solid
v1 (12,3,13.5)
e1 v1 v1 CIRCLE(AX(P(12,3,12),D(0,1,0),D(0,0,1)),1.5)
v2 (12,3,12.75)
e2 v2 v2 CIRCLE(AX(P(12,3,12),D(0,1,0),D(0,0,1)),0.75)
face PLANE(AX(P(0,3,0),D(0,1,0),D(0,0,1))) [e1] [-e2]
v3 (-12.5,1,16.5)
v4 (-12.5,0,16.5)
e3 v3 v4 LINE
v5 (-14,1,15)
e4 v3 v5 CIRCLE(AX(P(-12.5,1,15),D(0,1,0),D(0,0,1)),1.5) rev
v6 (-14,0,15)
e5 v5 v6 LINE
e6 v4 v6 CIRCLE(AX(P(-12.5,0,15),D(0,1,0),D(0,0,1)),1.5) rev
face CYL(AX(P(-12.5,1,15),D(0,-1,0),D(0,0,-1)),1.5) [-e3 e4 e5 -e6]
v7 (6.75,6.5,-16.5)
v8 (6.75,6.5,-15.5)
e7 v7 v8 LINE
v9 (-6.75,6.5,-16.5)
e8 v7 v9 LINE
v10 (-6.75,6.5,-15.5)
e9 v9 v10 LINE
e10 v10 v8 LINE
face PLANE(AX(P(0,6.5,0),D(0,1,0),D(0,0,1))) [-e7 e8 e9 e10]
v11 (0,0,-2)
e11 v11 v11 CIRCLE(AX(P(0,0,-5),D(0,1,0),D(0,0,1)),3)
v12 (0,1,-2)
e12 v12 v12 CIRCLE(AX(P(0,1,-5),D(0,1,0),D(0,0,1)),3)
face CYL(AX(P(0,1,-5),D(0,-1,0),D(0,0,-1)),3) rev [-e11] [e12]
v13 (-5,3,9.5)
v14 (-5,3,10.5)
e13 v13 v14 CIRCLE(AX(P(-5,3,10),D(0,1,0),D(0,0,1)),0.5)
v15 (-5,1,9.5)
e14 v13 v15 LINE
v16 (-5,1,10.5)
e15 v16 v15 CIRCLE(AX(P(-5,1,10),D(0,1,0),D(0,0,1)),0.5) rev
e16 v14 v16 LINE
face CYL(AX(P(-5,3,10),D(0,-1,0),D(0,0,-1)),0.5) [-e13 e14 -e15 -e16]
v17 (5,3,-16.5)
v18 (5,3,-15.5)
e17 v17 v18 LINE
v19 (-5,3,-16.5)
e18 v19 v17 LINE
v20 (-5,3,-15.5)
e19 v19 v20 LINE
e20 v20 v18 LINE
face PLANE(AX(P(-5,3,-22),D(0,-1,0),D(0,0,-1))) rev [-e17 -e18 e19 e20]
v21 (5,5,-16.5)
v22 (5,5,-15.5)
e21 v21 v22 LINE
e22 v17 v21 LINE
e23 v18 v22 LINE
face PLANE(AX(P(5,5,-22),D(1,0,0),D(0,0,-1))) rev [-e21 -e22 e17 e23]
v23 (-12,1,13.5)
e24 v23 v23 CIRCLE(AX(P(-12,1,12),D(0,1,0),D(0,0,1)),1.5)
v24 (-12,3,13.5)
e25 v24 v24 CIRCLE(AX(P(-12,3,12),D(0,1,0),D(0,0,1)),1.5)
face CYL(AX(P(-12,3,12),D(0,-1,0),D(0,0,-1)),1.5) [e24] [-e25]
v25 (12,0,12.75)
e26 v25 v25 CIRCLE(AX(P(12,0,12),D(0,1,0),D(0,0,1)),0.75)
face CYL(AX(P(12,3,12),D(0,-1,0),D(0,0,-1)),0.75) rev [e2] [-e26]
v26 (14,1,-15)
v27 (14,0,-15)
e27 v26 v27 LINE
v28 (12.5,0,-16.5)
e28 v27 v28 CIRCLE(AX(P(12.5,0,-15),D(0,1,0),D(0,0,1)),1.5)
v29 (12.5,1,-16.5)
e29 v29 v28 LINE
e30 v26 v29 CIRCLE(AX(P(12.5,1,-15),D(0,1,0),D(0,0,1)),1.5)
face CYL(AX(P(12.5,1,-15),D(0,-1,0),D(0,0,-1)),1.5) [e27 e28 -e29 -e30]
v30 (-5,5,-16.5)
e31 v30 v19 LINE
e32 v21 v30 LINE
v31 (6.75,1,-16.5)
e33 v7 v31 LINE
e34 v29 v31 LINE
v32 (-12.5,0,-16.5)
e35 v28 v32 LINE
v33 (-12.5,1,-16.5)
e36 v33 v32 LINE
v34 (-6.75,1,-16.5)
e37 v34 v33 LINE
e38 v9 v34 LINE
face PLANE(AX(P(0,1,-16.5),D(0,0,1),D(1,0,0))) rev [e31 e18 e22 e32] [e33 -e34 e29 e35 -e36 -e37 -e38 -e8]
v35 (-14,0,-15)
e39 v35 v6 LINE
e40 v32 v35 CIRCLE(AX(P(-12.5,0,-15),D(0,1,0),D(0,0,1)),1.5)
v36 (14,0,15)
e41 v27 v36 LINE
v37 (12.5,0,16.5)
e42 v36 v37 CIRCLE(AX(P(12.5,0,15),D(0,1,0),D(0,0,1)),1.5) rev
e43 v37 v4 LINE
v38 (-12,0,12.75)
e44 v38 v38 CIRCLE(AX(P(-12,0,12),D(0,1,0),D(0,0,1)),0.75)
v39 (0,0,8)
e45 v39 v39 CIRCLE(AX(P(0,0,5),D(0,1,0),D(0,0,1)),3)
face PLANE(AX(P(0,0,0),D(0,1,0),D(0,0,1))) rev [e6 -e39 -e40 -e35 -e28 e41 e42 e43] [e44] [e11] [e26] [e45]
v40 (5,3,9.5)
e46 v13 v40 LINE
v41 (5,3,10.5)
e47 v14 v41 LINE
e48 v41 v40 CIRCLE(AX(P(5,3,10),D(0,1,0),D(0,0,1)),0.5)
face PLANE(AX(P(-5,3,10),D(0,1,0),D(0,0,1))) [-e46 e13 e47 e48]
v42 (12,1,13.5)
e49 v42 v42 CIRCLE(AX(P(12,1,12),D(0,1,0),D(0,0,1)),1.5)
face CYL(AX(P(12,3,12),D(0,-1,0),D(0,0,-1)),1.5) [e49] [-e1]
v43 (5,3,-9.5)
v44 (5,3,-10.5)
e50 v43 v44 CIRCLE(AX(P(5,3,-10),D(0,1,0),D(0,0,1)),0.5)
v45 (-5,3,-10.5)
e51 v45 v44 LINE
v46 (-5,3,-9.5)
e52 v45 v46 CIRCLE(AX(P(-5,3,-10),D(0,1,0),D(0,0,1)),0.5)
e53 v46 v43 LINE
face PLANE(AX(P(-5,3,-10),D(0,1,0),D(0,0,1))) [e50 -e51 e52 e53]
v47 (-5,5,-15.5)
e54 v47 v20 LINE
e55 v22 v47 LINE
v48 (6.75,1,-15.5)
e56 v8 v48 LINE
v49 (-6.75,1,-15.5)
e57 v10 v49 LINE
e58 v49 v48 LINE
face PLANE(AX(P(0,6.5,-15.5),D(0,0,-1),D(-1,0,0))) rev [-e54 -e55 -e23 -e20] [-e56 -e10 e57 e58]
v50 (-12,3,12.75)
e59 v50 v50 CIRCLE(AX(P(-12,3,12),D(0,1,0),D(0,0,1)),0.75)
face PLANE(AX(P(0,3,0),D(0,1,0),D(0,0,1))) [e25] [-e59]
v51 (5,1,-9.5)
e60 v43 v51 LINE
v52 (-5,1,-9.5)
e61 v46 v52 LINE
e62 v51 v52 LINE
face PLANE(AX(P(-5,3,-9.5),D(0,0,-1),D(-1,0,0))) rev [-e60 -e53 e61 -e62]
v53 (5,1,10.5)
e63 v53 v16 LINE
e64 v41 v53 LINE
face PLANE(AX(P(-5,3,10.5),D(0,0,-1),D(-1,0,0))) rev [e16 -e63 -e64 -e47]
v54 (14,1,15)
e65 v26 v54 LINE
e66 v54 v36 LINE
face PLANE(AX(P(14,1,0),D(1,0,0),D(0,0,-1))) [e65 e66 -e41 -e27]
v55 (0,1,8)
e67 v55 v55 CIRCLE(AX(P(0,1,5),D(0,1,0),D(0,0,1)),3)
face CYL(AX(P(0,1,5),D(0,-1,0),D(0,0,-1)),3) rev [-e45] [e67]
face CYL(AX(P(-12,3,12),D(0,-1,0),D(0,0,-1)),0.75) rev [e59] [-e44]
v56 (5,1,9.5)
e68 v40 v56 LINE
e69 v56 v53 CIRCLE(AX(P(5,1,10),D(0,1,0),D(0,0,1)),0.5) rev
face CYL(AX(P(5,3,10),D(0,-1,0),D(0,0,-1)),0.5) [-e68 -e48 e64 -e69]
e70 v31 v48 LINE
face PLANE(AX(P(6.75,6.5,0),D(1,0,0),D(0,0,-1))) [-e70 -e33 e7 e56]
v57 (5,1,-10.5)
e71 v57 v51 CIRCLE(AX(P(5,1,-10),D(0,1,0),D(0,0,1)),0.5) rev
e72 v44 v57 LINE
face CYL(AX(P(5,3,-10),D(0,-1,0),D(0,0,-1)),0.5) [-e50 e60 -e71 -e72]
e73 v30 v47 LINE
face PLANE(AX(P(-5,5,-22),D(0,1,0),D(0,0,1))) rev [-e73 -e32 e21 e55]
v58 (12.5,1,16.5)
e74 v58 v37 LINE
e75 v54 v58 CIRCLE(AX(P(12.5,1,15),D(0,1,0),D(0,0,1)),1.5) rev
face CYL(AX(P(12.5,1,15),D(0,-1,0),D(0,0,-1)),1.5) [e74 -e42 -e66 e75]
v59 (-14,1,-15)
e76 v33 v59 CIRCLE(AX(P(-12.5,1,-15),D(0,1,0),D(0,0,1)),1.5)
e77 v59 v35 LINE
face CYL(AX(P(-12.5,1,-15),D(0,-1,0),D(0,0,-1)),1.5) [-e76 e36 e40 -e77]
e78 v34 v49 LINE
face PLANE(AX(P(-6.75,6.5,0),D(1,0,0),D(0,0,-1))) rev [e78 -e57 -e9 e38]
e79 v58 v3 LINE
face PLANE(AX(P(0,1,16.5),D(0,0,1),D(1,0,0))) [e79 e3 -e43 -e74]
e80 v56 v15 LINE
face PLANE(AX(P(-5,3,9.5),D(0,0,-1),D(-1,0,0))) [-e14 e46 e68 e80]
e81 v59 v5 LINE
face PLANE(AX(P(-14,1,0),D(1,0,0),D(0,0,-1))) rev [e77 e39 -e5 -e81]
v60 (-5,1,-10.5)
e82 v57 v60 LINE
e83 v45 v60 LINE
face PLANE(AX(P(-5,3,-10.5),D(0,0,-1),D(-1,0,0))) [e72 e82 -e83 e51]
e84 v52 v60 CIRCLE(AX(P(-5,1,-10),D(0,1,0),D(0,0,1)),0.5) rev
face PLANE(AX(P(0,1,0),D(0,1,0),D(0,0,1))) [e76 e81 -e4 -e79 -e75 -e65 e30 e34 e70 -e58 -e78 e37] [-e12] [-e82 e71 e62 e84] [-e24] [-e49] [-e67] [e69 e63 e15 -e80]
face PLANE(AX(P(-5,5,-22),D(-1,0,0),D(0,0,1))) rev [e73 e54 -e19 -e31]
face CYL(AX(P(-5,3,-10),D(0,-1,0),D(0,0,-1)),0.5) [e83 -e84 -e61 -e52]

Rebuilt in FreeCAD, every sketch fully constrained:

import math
import FreeCAD as App
import Part
import Sketcher

V = App.Vector


def add_polygon(sketch, points):
    """Adds a closed chain of lines whose ends are joined by coincident constraints."""
    first, n = sketch.GeometryCount, len(points)
    for a, b in zip(points, points[1:] + points[:1]):
        sketch.addGeometry(Part.LineSegment(App.Vector(*a, 0), App.Vector(*b, 0)), False)
    for i in range(n):
        sketch.addConstraint(Sketcher.Constraint("Coincident", first + i, 2, first + (i + 1) % n, 1))

doc = App.newDocument("Part")
body = doc.addObject("PartDesign::Body", "Body")

sketch1 = body.newObject("Sketcher::SketchObject", "Sketch")
sketch1.AttachmentSupport = (doc.getObject("XZ_Plane"), [""])
sketch1.MapMode = "FlatFace"
sketch1.addGeometry(Part.Circle(V(-12, 12, 0), V(0, 0, 1), 1.5), False)
sketch1.addGeometry(Part.Circle(V(-12, 12, 0), V(0, 0, 1), 0.75), False)
sketch1.addConstraint(Sketcher.Constraint("Coincident", 1, 3, 0, 3))
sketch1.addConstraint(Sketcher.Constraint("Diameter", 0, 3.0))
sketch1.addConstraint(Sketcher.Constraint("Diameter", 1, 1.5))
sketch1.addConstraint(Sketcher.Constraint("DistanceX", 0, 3, -1, 1, 12.0))
sketch1.addConstraint(Sketcher.Constraint("DistanceY", -1, 1, 0, 3, 12.0))
pad1 = body.newObject("PartDesign::Pad", "Pad")
pad1.Profile = sketch1
pad1.Length = 3
pad1.Reversed = True
body2 = doc.addObject("PartDesign::Body", "Body001")

sketch2 = body2.newObject("Sketcher::SketchObject", "Sketch001")
sketch2.AttachmentSupport = (doc.getObject("XZ_Plane001"), [""])
sketch2.MapMode = "FlatFace"
sketch2.addGeometry(Part.Circle(V(12, 12, 0), V(0, 0, 1), 1.5), False)
sketch2.addGeometry(Part.Circle(V(12, 12, 0), V(0, 0, 1), 0.75), False)
sketch2.addConstraint(Sketcher.Constraint("Coincident", 1, 3, 0, 3))
sketch2.addConstraint(Sketcher.Constraint("Diameter", 0, 3.0))
sketch2.addConstraint(Sketcher.Constraint("Diameter", 1, 1.5))
sketch2.addConstraint(Sketcher.Constraint("DistanceX", -1, 1, 0, 3, 12.0))
sketch2.addConstraint(Sketcher.Constraint("DistanceY", -1, 1, 0, 3, 12.0))
pad2 = body2.newObject("PartDesign::Pad", "Pad001")
pad2.Profile = sketch2
pad2.Length = 3
pad2.Reversed = True
body3 = doc.addObject("PartDesign::Body", "Body002")

sketch3 = body3.newObject("Sketcher::SketchObject", "Sketch002")
sketch3.AttachmentSupport = (doc.getObject("XZ_Plane002"), [""])
sketch3.MapMode = "FlatFace"
add_polygon(sketch3, [(-6.75, -16.5), (-6.75, -15.5), (6.75, -15.5), (6.75, -16.5)])
sketch3.addConstraint(Sketcher.Constraint("Vertical", 0))
sketch3.addConstraint(Sketcher.Constraint("Horizontal", 1))
sketch3.addConstraint(Sketcher.Constraint("Vertical", 2))
sketch3.addConstraint(Sketcher.Constraint("Horizontal", 3))
sketch3.addConstraint(Sketcher.Constraint("DistanceY", 0, 1, 0, 2, 1.0))
sketch3.addConstraint(Sketcher.Constraint("DistanceX", 1, 1, 1, 2, 13.5))
sketch3.addConstraint(Sketcher.Constraint("DistanceY", 0, 2, -1, 1, 15.5))
sketch3.addConstraint(Sketcher.Constraint("DistanceX", 0, 2, -1, 1, 6.75))
pad3 = body3.newObject("PartDesign::Pad", "Pad002")
pad3.Profile = sketch3
pad3.Length = 6.5
pad3.Reversed = True
body.AllowCompound = True
doc.recompute()

boolean = body.newObject("PartDesign::Boolean", "Boolean")
boolean.Type = "Fuse"
boolean.addObjects([body2])
doc.recompute()

boolean2 = body.newObject("PartDesign::Boolean", "Boolean001")
boolean2.Type = "Fuse"
boolean2.addObjects([body3])

sketch4 = body.newObject("Sketcher::SketchObject", "Sketch003")
sketch4.AttachmentSupport = (doc.getObject("XZ_Plane"), [""])
sketch4.MapMode = "FlatFace"
sketch4.addGeometry(Part.ArcOfCircle(Part.Circle(V(12.5, -15, 0), V(0, 0, 1), 1.5), math.radians(-90), math.radians(0)), False)
sketch4.addGeometry(Part.LineSegment(V(12.5, -16.5, 0), V(6.75, -16.5, 0)), False)
sketch4.addGeometry(Part.LineSegment(V(6.75, -16.5, 0), V(6.75, -15.5, 0)), False)
sketch4.addGeometry(Part.LineSegment(V(6.75, -15.5, 0), V(-6.75, -15.5, 0)), False)
sketch4.addGeometry(Part.LineSegment(V(-6.75, -15.5, 0), V(-6.75, -16.5, 0)), False)
sketch4.addGeometry(Part.LineSegment(V(-6.75, -16.5, 0), V(-12.5, -16.5, 0)), False)
sketch4.addGeometry(Part.ArcOfCircle(Part.Circle(V(-12.5, -15, 0), V(0, 0, 1), 1.5), math.radians(180), math.radians(270)), False)
sketch4.addGeometry(Part.LineSegment(V(-14, -15, 0), V(-14, 15, 0)), False)
sketch4.addGeometry(Part.ArcOfCircle(Part.Circle(V(-12.5, 15, 0), V(0, 0, 1), 1.5), math.radians(90), math.radians(180)), False)
sketch4.addGeometry(Part.LineSegment(V(-12.5, 16.5, 0), V(12.5, 16.5, 0)), False)
sketch4.addGeometry(Part.ArcOfCircle(Part.Circle(V(12.5, 15, 0), V(0, 0, 1), 1.5), math.radians(0), math.radians(90)), False)
sketch4.addGeometry(Part.LineSegment(V(14, 15, 0), V(14, -15, 0)), False)
sketch4.addGeometry(Part.Circle(V(-12, 12, 0), V(0, 0, 1), 1.5), False)
sketch4.addGeometry(Part.Circle(V(12, 12, 0), V(0, 0, 1), 1.5), False)
sketch4.addGeometry(Part.Circle(V(0, 5, 0), V(0, 0, 1), 3), False)
sketch4.addGeometry(Part.Circle(V(0, -5, 0), V(0, 0, 1), 3), False)
sketch4.addConstraint(Sketcher.Constraint("Tangent", 0, 1, 1, 1))
sketch4.addConstraint(Sketcher.Constraint("Coincident", 1, 2, 2, 1))
sketch4.addConstraint(Sketcher.Constraint("Coincident", 2, 2, 3, 1))
sketch4.addConstraint(Sketcher.Constraint("Coincident", 3, 2, 4, 1))
sketch4.addConstraint(Sketcher.Constraint("Coincident", 4, 2, 5, 1))
sketch4.addConstraint(Sketcher.Constraint("Tangent", 5, 2, 6, 2))
sketch4.addConstraint(Sketcher.Constraint("Tangent", 6, 1, 7, 1))
sketch4.addConstraint(Sketcher.Constraint("Tangent", 7, 2, 8, 2))
sketch4.addConstraint(Sketcher.Constraint("Tangent", 8, 1, 9, 1))
sketch4.addConstraint(Sketcher.Constraint("Tangent", 9, 2, 10, 2))
sketch4.addConstraint(Sketcher.Constraint("Tangent", 10, 1, 11, 1))
sketch4.addConstraint(Sketcher.Constraint("Tangent", 11, 2, 0, 2))
sketch4.addConstraint(Sketcher.Constraint("Horizontal", 1))
sketch4.addConstraint(Sketcher.Constraint("Vertical", 2))
sketch4.addConstraint(Sketcher.Constraint("Horizontal", 3))
sketch4.addConstraint(Sketcher.Constraint("Vertical", 4))
sketch4.addConstraint(Sketcher.Constraint("Horizontal", 5))
sketch4.addConstraint(Sketcher.Constraint("Vertical", 7))
sketch4.addConstraint(Sketcher.Constraint("Horizontal", 9))
sketch4.addConstraint(Sketcher.Constraint("Vertical", 11))
sketch4.addConstraint(Sketcher.Constraint("Equal", 0, 6))
sketch4.addConstraint(Sketcher.Constraint("Equal", 6, 8))
sketch4.addConstraint(Sketcher.Constraint("Equal", 8, 10))
sketch4.addConstraint(Sketcher.Constraint("Equal", 10, 12))
sketch4.addConstraint(Sketcher.Constraint("Equal", 12, 13))
sketch4.addConstraint(Sketcher.Constraint("Equal", 14, 15))
sketch4.addConstraint(Sketcher.Constraint("Symmetric", 0, 3, 8, 3, -1, 1))
sketch4.addConstraint(Sketcher.Constraint("Symmetric", 14, 3, 15, 3, -1, 1))
sketch4.addConstraint(Sketcher.Constraint("Symmetric", 12, 3, 13, 3, -2))
sketch4.addConstraint(Sketcher.Constraint("Symmetric", 1, 2, 4, 2, -2))
sketch4.addConstraint(Sketcher.Constraint("PointOnObject", 14, 3, -2))
sketch4.addConstraint(Sketcher.Constraint("Diameter", 12, 3.0))
sketch4.addConstraint(Sketcher.Constraint("Diameter", 14, 6.0))
sketch4.addConstraint(Sketcher.Constraint("DistanceX", 9, 1, 9, 2, 25.0))
sketch4.addConstraint(Sketcher.Constraint("DistanceY", 2, 1, 2, 2, 1.0))
sketch4.addConstraint(Sketcher.Constraint("DistanceY", 7, 1, 7, 2, 30.0))
sketch4.addConstraint(Sketcher.Constraint("DistanceX", 3, 2, 3, 1, 13.5))
sketch4.addConstraint(Sketcher.Constraint("DistanceX", 12, 3, -1, 1, 12.0))
sketch4.addConstraint(Sketcher.Constraint("DistanceY", -1, 1, 12, 3, 12.0))
sketch4.addConstraint(Sketcher.Constraint("DistanceY", -1, 1, 14, 3, 5.0))
pad4 = body.newObject("PartDesign::Pad", "Pad003")
pad4.Profile = sketch4
pad4.Length = 1
pad4.Reversed = True

sketch5 = body.newObject("Sketcher::SketchObject", "Sketch004")
sketch5.AttachmentSupport = (doc.getObject("XZ_Plane"), [""])
sketch5.MapMode = "FlatFace"
sketch5.addGeometry(Part.LineSegment(V(5, 9.5, 0), V(-5, 9.5, 0)), False)
sketch5.addGeometry(Part.ArcOfCircle(Part.Circle(V(-5, 10, 0), V(0, 0, 1), 0.5), math.radians(90), math.radians(270)), False)
sketch5.addGeometry(Part.LineSegment(V(-5, 10.5, 0), V(5, 10.5, 0)), False)
sketch5.addGeometry(Part.ArcOfCircle(Part.Circle(V(5, 10, 0), V(0, 0, 1), 0.5), math.radians(-90), math.radians(90)), False)
sketch5.addGeometry(Part.LineSegment(V(5, -10.5, 0), V(-5, -10.5, 0)), False)
sketch5.addGeometry(Part.ArcOfCircle(Part.Circle(V(-5, -10, 0), V(0, 0, 1), 0.5), math.radians(90), math.radians(270)), False)
sketch5.addGeometry(Part.LineSegment(V(-5, -9.5, 0), V(5, -9.5, 0)), False)
sketch5.addGeometry(Part.ArcOfCircle(Part.Circle(V(5, -10, 0), V(0, 0, 1), 0.5), math.radians(-90), math.radians(90)), False)
sketch5.addConstraint(Sketcher.Constraint("Tangent", 0, 2, 1, 2))
sketch5.addConstraint(Sketcher.Constraint("Tangent", 1, 1, 2, 1))
sketch5.addConstraint(Sketcher.Constraint("Tangent", 2, 2, 3, 2))
sketch5.addConstraint(Sketcher.Constraint("Tangent", 3, 1, 0, 1))
sketch5.addConstraint(Sketcher.Constraint("Tangent", 4, 2, 5, 2))
sketch5.addConstraint(Sketcher.Constraint("Tangent", 5, 1, 6, 1))
sketch5.addConstraint(Sketcher.Constraint("Tangent", 6, 2, 7, 2))
sketch5.addConstraint(Sketcher.Constraint("Tangent", 7, 1, 4, 1))
sketch5.addConstraint(Sketcher.Constraint("Horizontal", 0))
sketch5.addConstraint(Sketcher.Constraint("Horizontal", 2))
sketch5.addConstraint(Sketcher.Constraint("Horizontal", 4))
sketch5.addConstraint(Sketcher.Constraint("Horizontal", 6))
sketch5.addConstraint(Sketcher.Constraint("Equal", 3, 5))
sketch5.addConstraint(Sketcher.Constraint("Symmetric", 3, 3, 5, 3, -1, 1))
sketch5.addConstraint(Sketcher.Constraint("Vertical", 1, 3, 5, 3))
sketch5.addConstraint(Sketcher.Constraint("Vertical", 3, 3, 7, 3))
sketch5.addConstraint(Sketcher.Constraint("Radius", 1, 0.5))
sketch5.addConstraint(Sketcher.Constraint("DistanceX", 0, 2, 0, 1, 10.0))
sketch5.addConstraint(Sketcher.Constraint("DistanceY", -1, 1, 1, 3, 10.0))
pad5 = body.newObject("PartDesign::Pad", "Pad004")
pad5.Profile = sketch5
pad5.Length = 3
pad5.Reversed = True

sketch6 = body.newObject("Sketcher::SketchObject", "Sketch005")
sketch6.AttachmentSupport = (doc.getObject("XY_Plane"), [""])
sketch6.MapMode = "FlatFace"
sketch6.AttachmentOffset = App.Placement(V(0, 0, -15.5), App.Rotation())
add_polygon(sketch6, [(-5, 5), (-5, 3), (5, 3), (5, 5)])
sketch6.addConstraint(Sketcher.Constraint("Vertical", 0))
sketch6.addConstraint(Sketcher.Constraint("Horizontal", 1))
sketch6.addConstraint(Sketcher.Constraint("Vertical", 2))
sketch6.addConstraint(Sketcher.Constraint("Horizontal", 3))
sketch6.addConstraint(Sketcher.Constraint("DistanceX", 1, 1, 1, 2, 10.0))
sketch6.addConstraint(Sketcher.Constraint("DistanceY", 0, 2, 0, 1, 2.0))
sketch6.addConstraint(Sketcher.Constraint("DistanceX", 0, 2, -1, 1, 5.0))
sketch6.addConstraint(Sketcher.Constraint("DistanceY", -1, 1, 0, 2, 3.0))
pocket1 = body.newObject("PartDesign::Pocket", "Pocket")
pocket1.Profile = sketch6
pocket1.Length = 6.5

doc.recompute()
